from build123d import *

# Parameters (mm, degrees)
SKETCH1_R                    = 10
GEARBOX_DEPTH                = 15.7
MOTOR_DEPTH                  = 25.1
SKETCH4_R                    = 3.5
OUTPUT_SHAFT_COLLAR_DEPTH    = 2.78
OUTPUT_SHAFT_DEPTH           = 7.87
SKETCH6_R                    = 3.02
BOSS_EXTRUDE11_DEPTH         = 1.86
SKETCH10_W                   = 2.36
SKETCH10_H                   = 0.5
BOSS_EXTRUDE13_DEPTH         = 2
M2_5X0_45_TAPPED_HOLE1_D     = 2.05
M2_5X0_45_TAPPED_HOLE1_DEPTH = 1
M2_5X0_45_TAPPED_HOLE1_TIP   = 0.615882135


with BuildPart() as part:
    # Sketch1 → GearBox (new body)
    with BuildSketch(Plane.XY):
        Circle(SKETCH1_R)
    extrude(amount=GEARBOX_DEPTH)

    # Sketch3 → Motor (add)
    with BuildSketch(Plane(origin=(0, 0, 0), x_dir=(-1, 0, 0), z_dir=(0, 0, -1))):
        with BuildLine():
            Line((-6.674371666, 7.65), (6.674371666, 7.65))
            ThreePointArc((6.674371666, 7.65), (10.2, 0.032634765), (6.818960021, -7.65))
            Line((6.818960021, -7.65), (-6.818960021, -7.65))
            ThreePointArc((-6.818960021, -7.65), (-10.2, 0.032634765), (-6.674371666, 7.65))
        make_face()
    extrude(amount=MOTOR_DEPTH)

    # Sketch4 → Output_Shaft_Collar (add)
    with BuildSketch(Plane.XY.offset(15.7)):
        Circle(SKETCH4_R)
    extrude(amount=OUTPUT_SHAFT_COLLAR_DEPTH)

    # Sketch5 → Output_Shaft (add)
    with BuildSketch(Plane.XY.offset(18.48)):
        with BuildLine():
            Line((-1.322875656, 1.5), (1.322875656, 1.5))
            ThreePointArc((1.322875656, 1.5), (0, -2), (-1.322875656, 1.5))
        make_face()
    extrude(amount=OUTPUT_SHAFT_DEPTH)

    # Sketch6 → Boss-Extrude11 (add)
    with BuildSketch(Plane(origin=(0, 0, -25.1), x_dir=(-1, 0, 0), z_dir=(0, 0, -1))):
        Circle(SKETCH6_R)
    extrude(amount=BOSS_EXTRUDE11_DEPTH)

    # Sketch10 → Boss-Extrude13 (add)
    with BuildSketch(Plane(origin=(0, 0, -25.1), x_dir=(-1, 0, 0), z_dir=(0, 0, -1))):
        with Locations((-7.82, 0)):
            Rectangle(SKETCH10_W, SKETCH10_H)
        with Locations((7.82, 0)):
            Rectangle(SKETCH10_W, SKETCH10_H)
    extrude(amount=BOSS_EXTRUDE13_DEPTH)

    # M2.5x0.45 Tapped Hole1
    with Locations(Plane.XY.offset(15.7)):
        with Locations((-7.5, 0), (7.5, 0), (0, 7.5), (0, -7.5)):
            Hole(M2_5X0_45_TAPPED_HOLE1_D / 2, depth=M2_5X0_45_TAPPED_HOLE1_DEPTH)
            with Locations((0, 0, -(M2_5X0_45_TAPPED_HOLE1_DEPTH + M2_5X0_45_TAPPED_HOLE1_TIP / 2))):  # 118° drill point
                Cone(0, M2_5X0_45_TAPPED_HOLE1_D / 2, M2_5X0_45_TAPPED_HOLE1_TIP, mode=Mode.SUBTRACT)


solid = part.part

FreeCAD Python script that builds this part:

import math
import FreeCAD as App
import Part
import Sketcher

doc = App.newDocument("Part")
body = doc.addObject("PartDesign::Body", "Body")

sketch1 = body.newObject("Sketcher::SketchObject", "Sketch")
sketch1.AttachmentSupport = (doc.getObject("XY_Plane"), [""])
sketch1.MapMode = "FlatFace"
sketch1.addGeometry(Part.Circle(App.Vector(0, 0, 0), App.Vector(0, 0, 1), 10), False)
sketch1.addConstraint([
    Sketcher.Constraint("Coincident", 0, 3, -1, 1),
    Sketcher.Constraint("Diameter", 0, 20.0),
])
pad1 = body.newObject("PartDesign::Pad", "Pad")
pad1.Profile = sketch1
pad1.Length = 15.7

sketch2 = body.newObject("Sketcher::SketchObject", "Sketch001")
sketch2.AttachmentSupport = (doc.getObject("XY_Plane"), [""])
sketch2.MapMode = "FlatFace"
sketch2.addGeometry([
    Part.LineSegment(App.Vector(-7, 8, 0), App.Vector(7, 8, 0)),
    Part.ArcOfCircle(Part.Circle(App.Vector(0, 0, 0), App.Vector(0, 0, 1), 10), math.radians(-48), math.radians(49)),
    Part.LineSegment(App.Vector(7, -8, 0), App.Vector(-7, -8, 0)),
    Part.ArcOfCircle(Part.Circle(App.Vector(0, 0, 0), App.Vector(0, 0, 1), 10), math.radians(131), math.radians(228)),
], False)
sketch2.addConstraint([
    Sketcher.Constraint("Coincident", 0, 2, 1, 2),
    Sketcher.Constraint("Coincident", 1, 1, 2, 1),
    Sketcher.Constraint("Coincident", 2, 2, 3, 2),
    Sketcher.Constraint("Coincident", 3, 1, 0, 1),
    Sketcher.Constraint("Horizontal", 0),
    Sketcher.Constraint("Horizontal", 2),
    Sketcher.Constraint("Coincident", 3, 3, 1, 3),
    Sketcher.Constraint("Equal", 1, 3),
    Sketcher.Constraint("PointOnObject", 1, 3, -2),
    Sketcher.Constraint("DistanceY", 1, 1, 0, 2, 15.3),
    Sketcher.Constraint("DistanceY", -1, 1, 0, 2, 7.65),
    Sketcher.Constraint("Radius", 1, 10.200455),
    Sketcher.Constraint("DistanceX", 2, 2, 2, 1, 13.63792),
])
pad2 = body.newObject("PartDesign::Pad", "Pad001")
pad2.Profile = sketch2
pad2.Length = 25.1
pad2.Reversed = True

sketch3 = body.newObject("Sketcher::SketchObject", "Sketch002")
sketch3.AttachmentSupport = (doc.getObject("XY_Plane"), [""])
sketch3.MapMode = "FlatFace"
sketch3.AttachmentOffset = App.Placement(App.Vector(0, 0, 15.7), App.Rotation())
sketch3.addGeometry(Part.Circle(App.Vector(0, 0, 0), App.Vector(0, 0, 1), 3.5), False)
sketch3.addConstraint([
    Sketcher.Constraint("Coincident", 0, 3, -1, 1),
    Sketcher.Constraint("Diameter", 0, 7.0),
])
pad3 = body.newObject("PartDesign::Pad", "Pad002")
pad3.Profile = sketch3
pad3.Length = 2.78

sketch4 = body.newObject("Sketcher::SketchObject", "Sketch003")
sketch4.AttachmentSupport = (doc.getObject("XY_Plane"), [""])
sketch4.MapMode = "FlatFace"
sketch4.AttachmentOffset = App.Placement(App.Vector(0, 0, 18.48), App.Rotation())
sketch4.addGeometry([
    Part.LineSegment(App.Vector(1.3, 1.5, 0), App.Vector(-1.3, 1.5, 0)),
    Part.ArcOfCircle(Part.Circle(App.Vector(0, 0, 0), App.Vector(0, 0, 1), 2), math.radians(131), math.radians(409)),
], False)
sketch4.addConstraint([
    Sketcher.Constraint("Coincident", 0, 1, 1, 2),
    Sketcher.Constraint("Coincident", 1, 1, 0, 2),
    Sketcher.Constraint("Horizontal", 0),
    Sketcher.Constraint("Coincident", 1, 3, -1, 1),
    Sketcher.Constraint("Radius", 1, 2.0),
    Sketcher.Constraint("DistanceY", -1, 1, 0, 1, 1.5),
])
pad4 = body.newObject("PartDesign::Pad", "Pad003")
pad4.Profile = sketch4
pad4.Length = 7.87

sketch5 = body.newObject("Sketcher::SketchObject", "Sketch004")
sketch5.AttachmentSupport = (doc.getObject("XY_Plane"), [""])
sketch5.MapMode = "FlatFace"
sketch5.AttachmentOffset = App.Placement(App.Vector(0, 0, -25.1), App.Rotation())
sketch5.addGeometry(Part.Circle(App.Vector(0, 0, 0), App.Vector(0, 0, 1), 3), False)
sketch5.addConstraint([
    Sketcher.Constraint("Coincident", 0, 3, -1, 1),
    Sketcher.Constraint("Diameter", 0, 6.04),
])
pad5 = body.newObject("PartDesign::Pad", "Pad004")
pad5.Profile = sketch5
pad5.Length = 1.86
pad5.Reversed = True

sketch6 = body.newObject("Sketcher::SketchObject", "Sketch005")
sketch6.AttachmentSupport = (doc.getObject("XY_Plane"), [""])
sketch6.MapMode = "FlatFace"
sketch6.AttachmentOffset = App.Placement(App.Vector(0, 0, -25.1), App.Rotation())
sketch6.addGeometry([
    Part.LineSegment(App.Vector(9, 0.2, 0), App.Vector(9, -0.2, 0)),
    Part.LineSegment(App.Vector(9, -0.2, 0), App.Vector(6.6, -0.2, 0)),
    Part.LineSegment(App.Vector(6.6, -0.2, 0), App.Vector(6.6, 0.2, 0)),
    Part.LineSegment(App.Vector(6.6, 0.2, 0), App.Vector(9, 0.2, 0)),
    Part.LineSegment(App.Vector(-6.6, 0.2, 0), App.Vector(-6.6, -0.2, 0)),
    Part.LineSegment(App.Vector(-6.6, -0.2, 0), App.Vector(-9, -0.2, 0)),
    Part.LineSegment(App.Vector(-9, -0.2, 0), App.Vector(-9, 0.2, 0)),
    Part.LineSegment(App.Vector(-9, 0.2, 0), App.Vector(-6.6, 0.2, 0)),
], False)
sketch6.addConstraint([
    Sketcher.Constraint("Coincident", 0, 2, 1, 1),
    Sketcher.Constraint("Coincident", 1, 2, 2, 1),
    Sketcher.Constraint("Coincident", 2, 2, 3, 1),
    Sketcher.Constraint("Coincident", 3, 2, 0, 1),
    Sketcher.Constraint("Coincident", 4, 2, 5, 1),
    Sketcher.Constraint("Coincident", 5, 2, 6, 1),
    Sketcher.Constraint("Coincident", 6, 2, 7, 1),
    Sketcher.Constraint("Coincident", 7, 2, 4, 1),
    Sketcher.Constraint("Vertical", 0),
    Sketcher.Constraint("Horizontal", 1),
    Sketcher.Constraint("Vertical", 2),
    Sketcher.Constraint("Horizontal", 3),
    Sketcher.Constraint("Vertical", 4),
    Sketcher.Constraint("Horizontal", 5),
    Sketcher.Constraint("Vertical", 6),
    Sketcher.Constraint("Horizontal", 7),
    Sketcher.Constraint("Symmetric", 2, 2, 4, 2, -1, 1),
    Sketcher.Constraint("Symmetric", 0, 2, 6, 2, -1, 1),
    Sketcher.Constraint("Horizontal", 1, 2, 4, 2),
    Sketcher.Constraint("DistanceY", 0, 2, 0, 1, 0.5),
    Sketcher.Constraint("DistanceX", -1, 1, 0, 2, 9.0),
    Sketcher.Constraint("DistanceX", 1, 2, 1, 1, 2.36),
])
pad6 = body.newObject("PartDesign::Pad", "Pad005")
pad6.Profile = sketch6
pad6.Length = 2
pad6.Reversed = True

sketch7 = body.newObject("Sketcher::SketchObject", "Sketch006")
sketch7.AttachmentSupport = (doc.getObject("XY_Plane"), [""])
sketch7.MapMode = "FlatFace"
sketch7.AttachmentOffset = App.Placement(App.Vector(0, 0, 15.7), App.Rotation())
sketch7.addGeometry([
    Part.Circle(App.Vector(-7.5, 0, 0), App.Vector(0, 0, 1), 1),
    Part.Circle(App.Vector(7.5, 0, 0), App.Vector(0, 0, 1), 1),
    Part.Circle(App.Vector(0, 7.5, 0), App.Vector(0, 0, 1), 1),
    Part.Circle(App.Vector(0, -7.5, 0), App.Vector(0, 0, 1), 1),
], False)
sketch7.addConstraint([
    Sketcher.Constraint("Equal", 0, 1),
    Sketcher.Constraint("Equal", 1, 2),
    Sketcher.Constraint("Equal", 2, 3),
    Sketcher.Constraint("Symmetric", 0, 3, 1, 3, -1, 1),
    Sketcher.Constraint("Symmetric", 2, 3, 3, 3, -1, 1),
    Sketcher.Constraint("PointOnObject", 0, 3, -1),
    Sketcher.Constraint("PointOnObject", 2, 3, -2),
    Sketcher.Constraint("Diameter", 0, 2.05),
    Sketcher.Constraint("DistanceX", 0, 3, 1, 3, 15.0),
    Sketcher.Constraint("DistanceY", 3, 3, 2, 3, 15.0),
])
doc.recompute()
hole = body.newObject("PartDesign::Hole", "Hole")
hole.Profile = sketch7
hole.ThreadType = "None"
hole.Diameter = 2.05
hole.DepthType = "Dimension"
hole.Depth = 1
hole.DrillPoint = "Angled"
hole.DrillPointAngle = 118

doc.recompute()
